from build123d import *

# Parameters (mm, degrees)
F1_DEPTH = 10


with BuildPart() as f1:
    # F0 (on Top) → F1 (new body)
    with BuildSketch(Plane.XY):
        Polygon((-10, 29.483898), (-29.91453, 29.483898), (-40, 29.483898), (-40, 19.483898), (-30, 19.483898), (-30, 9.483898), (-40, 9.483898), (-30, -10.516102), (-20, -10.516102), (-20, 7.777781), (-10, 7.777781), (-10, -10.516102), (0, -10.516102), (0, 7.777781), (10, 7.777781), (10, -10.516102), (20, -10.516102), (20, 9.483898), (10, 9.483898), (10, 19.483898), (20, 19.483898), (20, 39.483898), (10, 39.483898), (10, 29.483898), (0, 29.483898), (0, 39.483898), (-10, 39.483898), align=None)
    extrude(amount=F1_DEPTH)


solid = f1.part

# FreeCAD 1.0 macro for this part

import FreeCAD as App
import Part
import Sketcher

V = App.Vector


def add_polygon(sketch, points):
    """Adds a closed chain of lines whose ends are joined by coincident constraints."""
    first, n = sketch.GeometryCount, len(points)
    for a, b in zip(points, points[1:] + points[:1]):
        sketch.addGeometry(Part.LineSegment(App.Vector(*a, 0), App.Vector(*b, 0)), False)
    for i in range(n):
        sketch.addConstraint(Sketcher.Constraint("Coincident", first + i, 2, first + (i + 1) % n, 1))

doc = App.newDocument("Part")
body = doc.addObject("PartDesign::Body", "Body")

sketch1 = body.newObject("Sketcher::SketchObject", "Sketch")
sketch1.AttachmentSupport = (doc.getObject("XY_Plane"), [""])
sketch1.MapMode = "FlatFace"
add_polygon(sketch1, [(-10, 29.483898), (-40, 29.483898), (-40, 19.483898), (-30, 19.483898), (-30, 9.483898), (-40, 9.483898), (-30, -10.516102), (-20, -10.516102), (-20, 7.777781), (-10, 7.777781), (-10, -10.516102), (0, -10.516102), (0, 7.777781), (10, 7.777781), (10, -10.516102), (20, -10.516102), (20, 9.483898), (10, 9.483898), (10, 19.483898), (20, 19.483898), (20, 39.483898), (10, 39.483898), (10, 29.483898), (0, 29.483898), (0, 39.483898), (-10, 39.483898)])
sketch1.addConstraint([
    Sketcher.Constraint("Horizontal", 0),
    Sketcher.Constraint("Vertical", 1),
    Sketcher.Constraint("Horizontal", 2),
    Sketcher.Constraint("Vertical", 3),
    Sketcher.Constraint("Horizontal", 4),
    Sketcher.Constraint("Horizontal", 6),
    Sketcher.Constraint("Vertical", 7),
    Sketcher.Constraint("Horizontal", 8),
    Sketcher.Constraint("Vertical", 9),
    Sketcher.Constraint("Horizontal", 10),
    Sketcher.Constraint("Vertical", 11),
    Sketcher.Constraint("Horizontal", 12),
    Sketcher.Constraint("Vertical", 13),
    Sketcher.Constraint("Horizontal", 14),
    Sketcher.Constraint("Vertical", 15),
    Sketcher.Constraint("Horizontal", 16),
    Sketcher.Constraint("Vertical", 17),
    Sketcher.Constraint("Horizontal", 18),
    Sketcher.Constraint("Vertical", 19),
    Sketcher.Constraint("Horizontal", 20),
    Sketcher.Constraint("Vertical", 21),
    Sketcher.Constraint("Horizontal", 22),
    Sketcher.Constraint("Vertical", 23),
    Sketcher.Constraint("Horizontal", 24),
    Sketcher.Constraint("Vertical", 25),
    Sketcher.Constraint("Symmetric", 8, 2, 12, 2, -2),
    Sketcher.Constraint("Symmetric", 6, 2, 14, 2, -2),
    Sketcher.Constraint("Symmetric", 20, 2, 24, 2, -2),
    Sketcher.Constraint("PointOnObject", 10, 2, -2),
    Sketcher.Constraint("PointOnObject", 22, 2, -2),
    Sketcher.Constraint("Horizontal", 6, 2, 9, 2),
    Sketcher.Constraint("Horizontal", 4, 2, 15, 2),
    Sketcher.Constraint("Horizontal", 2, 2, 17, 2),
    Sketcher.Constraint("Horizontal", 0, 2, 21, 2),
    Sketcher.Constraint("Vertical", 1, 2, 4, 2),
    Sketcher.Constraint("Vertical", 3, 2, 5, 2),
    Sketcher.Constraint("Vertical", 13, 2, 16, 2),
    Sketcher.Constraint("Vertical", 15, 2, 18, 2),
    Sketcher.Constraint("Vertical", 17, 2, 20, 2),
    Sketcher.Constraint("Equal", 4, 6),
    Sketcher.Constraint("Equal", 6, 8),
    Sketcher.Constraint("Equal", 8, 10),
    Sketcher.Constraint("Equal", 24, 1),
    Sketcher.Constraint("Equal", 1, 3),
    Sketcher.Constraint("Equal", 15, 19),
    Sketcher.Constraint("Equal", 17, 21),
    Sketcher.Constraint("DistanceX", 0, 2, 0, 1, 30.0),
    Sketcher.Constraint("DistanceY", -1, 1, 0, 2, 29.483898),
    Sketcher.Constraint("DistanceY", 7, 1, 7, 2, 18.293883),
])
pad1 = body.newObject("PartDesign::Pad", "Pad")
pad1.Profile = sketch1
pad1.Length = 10

doc.recompute()
